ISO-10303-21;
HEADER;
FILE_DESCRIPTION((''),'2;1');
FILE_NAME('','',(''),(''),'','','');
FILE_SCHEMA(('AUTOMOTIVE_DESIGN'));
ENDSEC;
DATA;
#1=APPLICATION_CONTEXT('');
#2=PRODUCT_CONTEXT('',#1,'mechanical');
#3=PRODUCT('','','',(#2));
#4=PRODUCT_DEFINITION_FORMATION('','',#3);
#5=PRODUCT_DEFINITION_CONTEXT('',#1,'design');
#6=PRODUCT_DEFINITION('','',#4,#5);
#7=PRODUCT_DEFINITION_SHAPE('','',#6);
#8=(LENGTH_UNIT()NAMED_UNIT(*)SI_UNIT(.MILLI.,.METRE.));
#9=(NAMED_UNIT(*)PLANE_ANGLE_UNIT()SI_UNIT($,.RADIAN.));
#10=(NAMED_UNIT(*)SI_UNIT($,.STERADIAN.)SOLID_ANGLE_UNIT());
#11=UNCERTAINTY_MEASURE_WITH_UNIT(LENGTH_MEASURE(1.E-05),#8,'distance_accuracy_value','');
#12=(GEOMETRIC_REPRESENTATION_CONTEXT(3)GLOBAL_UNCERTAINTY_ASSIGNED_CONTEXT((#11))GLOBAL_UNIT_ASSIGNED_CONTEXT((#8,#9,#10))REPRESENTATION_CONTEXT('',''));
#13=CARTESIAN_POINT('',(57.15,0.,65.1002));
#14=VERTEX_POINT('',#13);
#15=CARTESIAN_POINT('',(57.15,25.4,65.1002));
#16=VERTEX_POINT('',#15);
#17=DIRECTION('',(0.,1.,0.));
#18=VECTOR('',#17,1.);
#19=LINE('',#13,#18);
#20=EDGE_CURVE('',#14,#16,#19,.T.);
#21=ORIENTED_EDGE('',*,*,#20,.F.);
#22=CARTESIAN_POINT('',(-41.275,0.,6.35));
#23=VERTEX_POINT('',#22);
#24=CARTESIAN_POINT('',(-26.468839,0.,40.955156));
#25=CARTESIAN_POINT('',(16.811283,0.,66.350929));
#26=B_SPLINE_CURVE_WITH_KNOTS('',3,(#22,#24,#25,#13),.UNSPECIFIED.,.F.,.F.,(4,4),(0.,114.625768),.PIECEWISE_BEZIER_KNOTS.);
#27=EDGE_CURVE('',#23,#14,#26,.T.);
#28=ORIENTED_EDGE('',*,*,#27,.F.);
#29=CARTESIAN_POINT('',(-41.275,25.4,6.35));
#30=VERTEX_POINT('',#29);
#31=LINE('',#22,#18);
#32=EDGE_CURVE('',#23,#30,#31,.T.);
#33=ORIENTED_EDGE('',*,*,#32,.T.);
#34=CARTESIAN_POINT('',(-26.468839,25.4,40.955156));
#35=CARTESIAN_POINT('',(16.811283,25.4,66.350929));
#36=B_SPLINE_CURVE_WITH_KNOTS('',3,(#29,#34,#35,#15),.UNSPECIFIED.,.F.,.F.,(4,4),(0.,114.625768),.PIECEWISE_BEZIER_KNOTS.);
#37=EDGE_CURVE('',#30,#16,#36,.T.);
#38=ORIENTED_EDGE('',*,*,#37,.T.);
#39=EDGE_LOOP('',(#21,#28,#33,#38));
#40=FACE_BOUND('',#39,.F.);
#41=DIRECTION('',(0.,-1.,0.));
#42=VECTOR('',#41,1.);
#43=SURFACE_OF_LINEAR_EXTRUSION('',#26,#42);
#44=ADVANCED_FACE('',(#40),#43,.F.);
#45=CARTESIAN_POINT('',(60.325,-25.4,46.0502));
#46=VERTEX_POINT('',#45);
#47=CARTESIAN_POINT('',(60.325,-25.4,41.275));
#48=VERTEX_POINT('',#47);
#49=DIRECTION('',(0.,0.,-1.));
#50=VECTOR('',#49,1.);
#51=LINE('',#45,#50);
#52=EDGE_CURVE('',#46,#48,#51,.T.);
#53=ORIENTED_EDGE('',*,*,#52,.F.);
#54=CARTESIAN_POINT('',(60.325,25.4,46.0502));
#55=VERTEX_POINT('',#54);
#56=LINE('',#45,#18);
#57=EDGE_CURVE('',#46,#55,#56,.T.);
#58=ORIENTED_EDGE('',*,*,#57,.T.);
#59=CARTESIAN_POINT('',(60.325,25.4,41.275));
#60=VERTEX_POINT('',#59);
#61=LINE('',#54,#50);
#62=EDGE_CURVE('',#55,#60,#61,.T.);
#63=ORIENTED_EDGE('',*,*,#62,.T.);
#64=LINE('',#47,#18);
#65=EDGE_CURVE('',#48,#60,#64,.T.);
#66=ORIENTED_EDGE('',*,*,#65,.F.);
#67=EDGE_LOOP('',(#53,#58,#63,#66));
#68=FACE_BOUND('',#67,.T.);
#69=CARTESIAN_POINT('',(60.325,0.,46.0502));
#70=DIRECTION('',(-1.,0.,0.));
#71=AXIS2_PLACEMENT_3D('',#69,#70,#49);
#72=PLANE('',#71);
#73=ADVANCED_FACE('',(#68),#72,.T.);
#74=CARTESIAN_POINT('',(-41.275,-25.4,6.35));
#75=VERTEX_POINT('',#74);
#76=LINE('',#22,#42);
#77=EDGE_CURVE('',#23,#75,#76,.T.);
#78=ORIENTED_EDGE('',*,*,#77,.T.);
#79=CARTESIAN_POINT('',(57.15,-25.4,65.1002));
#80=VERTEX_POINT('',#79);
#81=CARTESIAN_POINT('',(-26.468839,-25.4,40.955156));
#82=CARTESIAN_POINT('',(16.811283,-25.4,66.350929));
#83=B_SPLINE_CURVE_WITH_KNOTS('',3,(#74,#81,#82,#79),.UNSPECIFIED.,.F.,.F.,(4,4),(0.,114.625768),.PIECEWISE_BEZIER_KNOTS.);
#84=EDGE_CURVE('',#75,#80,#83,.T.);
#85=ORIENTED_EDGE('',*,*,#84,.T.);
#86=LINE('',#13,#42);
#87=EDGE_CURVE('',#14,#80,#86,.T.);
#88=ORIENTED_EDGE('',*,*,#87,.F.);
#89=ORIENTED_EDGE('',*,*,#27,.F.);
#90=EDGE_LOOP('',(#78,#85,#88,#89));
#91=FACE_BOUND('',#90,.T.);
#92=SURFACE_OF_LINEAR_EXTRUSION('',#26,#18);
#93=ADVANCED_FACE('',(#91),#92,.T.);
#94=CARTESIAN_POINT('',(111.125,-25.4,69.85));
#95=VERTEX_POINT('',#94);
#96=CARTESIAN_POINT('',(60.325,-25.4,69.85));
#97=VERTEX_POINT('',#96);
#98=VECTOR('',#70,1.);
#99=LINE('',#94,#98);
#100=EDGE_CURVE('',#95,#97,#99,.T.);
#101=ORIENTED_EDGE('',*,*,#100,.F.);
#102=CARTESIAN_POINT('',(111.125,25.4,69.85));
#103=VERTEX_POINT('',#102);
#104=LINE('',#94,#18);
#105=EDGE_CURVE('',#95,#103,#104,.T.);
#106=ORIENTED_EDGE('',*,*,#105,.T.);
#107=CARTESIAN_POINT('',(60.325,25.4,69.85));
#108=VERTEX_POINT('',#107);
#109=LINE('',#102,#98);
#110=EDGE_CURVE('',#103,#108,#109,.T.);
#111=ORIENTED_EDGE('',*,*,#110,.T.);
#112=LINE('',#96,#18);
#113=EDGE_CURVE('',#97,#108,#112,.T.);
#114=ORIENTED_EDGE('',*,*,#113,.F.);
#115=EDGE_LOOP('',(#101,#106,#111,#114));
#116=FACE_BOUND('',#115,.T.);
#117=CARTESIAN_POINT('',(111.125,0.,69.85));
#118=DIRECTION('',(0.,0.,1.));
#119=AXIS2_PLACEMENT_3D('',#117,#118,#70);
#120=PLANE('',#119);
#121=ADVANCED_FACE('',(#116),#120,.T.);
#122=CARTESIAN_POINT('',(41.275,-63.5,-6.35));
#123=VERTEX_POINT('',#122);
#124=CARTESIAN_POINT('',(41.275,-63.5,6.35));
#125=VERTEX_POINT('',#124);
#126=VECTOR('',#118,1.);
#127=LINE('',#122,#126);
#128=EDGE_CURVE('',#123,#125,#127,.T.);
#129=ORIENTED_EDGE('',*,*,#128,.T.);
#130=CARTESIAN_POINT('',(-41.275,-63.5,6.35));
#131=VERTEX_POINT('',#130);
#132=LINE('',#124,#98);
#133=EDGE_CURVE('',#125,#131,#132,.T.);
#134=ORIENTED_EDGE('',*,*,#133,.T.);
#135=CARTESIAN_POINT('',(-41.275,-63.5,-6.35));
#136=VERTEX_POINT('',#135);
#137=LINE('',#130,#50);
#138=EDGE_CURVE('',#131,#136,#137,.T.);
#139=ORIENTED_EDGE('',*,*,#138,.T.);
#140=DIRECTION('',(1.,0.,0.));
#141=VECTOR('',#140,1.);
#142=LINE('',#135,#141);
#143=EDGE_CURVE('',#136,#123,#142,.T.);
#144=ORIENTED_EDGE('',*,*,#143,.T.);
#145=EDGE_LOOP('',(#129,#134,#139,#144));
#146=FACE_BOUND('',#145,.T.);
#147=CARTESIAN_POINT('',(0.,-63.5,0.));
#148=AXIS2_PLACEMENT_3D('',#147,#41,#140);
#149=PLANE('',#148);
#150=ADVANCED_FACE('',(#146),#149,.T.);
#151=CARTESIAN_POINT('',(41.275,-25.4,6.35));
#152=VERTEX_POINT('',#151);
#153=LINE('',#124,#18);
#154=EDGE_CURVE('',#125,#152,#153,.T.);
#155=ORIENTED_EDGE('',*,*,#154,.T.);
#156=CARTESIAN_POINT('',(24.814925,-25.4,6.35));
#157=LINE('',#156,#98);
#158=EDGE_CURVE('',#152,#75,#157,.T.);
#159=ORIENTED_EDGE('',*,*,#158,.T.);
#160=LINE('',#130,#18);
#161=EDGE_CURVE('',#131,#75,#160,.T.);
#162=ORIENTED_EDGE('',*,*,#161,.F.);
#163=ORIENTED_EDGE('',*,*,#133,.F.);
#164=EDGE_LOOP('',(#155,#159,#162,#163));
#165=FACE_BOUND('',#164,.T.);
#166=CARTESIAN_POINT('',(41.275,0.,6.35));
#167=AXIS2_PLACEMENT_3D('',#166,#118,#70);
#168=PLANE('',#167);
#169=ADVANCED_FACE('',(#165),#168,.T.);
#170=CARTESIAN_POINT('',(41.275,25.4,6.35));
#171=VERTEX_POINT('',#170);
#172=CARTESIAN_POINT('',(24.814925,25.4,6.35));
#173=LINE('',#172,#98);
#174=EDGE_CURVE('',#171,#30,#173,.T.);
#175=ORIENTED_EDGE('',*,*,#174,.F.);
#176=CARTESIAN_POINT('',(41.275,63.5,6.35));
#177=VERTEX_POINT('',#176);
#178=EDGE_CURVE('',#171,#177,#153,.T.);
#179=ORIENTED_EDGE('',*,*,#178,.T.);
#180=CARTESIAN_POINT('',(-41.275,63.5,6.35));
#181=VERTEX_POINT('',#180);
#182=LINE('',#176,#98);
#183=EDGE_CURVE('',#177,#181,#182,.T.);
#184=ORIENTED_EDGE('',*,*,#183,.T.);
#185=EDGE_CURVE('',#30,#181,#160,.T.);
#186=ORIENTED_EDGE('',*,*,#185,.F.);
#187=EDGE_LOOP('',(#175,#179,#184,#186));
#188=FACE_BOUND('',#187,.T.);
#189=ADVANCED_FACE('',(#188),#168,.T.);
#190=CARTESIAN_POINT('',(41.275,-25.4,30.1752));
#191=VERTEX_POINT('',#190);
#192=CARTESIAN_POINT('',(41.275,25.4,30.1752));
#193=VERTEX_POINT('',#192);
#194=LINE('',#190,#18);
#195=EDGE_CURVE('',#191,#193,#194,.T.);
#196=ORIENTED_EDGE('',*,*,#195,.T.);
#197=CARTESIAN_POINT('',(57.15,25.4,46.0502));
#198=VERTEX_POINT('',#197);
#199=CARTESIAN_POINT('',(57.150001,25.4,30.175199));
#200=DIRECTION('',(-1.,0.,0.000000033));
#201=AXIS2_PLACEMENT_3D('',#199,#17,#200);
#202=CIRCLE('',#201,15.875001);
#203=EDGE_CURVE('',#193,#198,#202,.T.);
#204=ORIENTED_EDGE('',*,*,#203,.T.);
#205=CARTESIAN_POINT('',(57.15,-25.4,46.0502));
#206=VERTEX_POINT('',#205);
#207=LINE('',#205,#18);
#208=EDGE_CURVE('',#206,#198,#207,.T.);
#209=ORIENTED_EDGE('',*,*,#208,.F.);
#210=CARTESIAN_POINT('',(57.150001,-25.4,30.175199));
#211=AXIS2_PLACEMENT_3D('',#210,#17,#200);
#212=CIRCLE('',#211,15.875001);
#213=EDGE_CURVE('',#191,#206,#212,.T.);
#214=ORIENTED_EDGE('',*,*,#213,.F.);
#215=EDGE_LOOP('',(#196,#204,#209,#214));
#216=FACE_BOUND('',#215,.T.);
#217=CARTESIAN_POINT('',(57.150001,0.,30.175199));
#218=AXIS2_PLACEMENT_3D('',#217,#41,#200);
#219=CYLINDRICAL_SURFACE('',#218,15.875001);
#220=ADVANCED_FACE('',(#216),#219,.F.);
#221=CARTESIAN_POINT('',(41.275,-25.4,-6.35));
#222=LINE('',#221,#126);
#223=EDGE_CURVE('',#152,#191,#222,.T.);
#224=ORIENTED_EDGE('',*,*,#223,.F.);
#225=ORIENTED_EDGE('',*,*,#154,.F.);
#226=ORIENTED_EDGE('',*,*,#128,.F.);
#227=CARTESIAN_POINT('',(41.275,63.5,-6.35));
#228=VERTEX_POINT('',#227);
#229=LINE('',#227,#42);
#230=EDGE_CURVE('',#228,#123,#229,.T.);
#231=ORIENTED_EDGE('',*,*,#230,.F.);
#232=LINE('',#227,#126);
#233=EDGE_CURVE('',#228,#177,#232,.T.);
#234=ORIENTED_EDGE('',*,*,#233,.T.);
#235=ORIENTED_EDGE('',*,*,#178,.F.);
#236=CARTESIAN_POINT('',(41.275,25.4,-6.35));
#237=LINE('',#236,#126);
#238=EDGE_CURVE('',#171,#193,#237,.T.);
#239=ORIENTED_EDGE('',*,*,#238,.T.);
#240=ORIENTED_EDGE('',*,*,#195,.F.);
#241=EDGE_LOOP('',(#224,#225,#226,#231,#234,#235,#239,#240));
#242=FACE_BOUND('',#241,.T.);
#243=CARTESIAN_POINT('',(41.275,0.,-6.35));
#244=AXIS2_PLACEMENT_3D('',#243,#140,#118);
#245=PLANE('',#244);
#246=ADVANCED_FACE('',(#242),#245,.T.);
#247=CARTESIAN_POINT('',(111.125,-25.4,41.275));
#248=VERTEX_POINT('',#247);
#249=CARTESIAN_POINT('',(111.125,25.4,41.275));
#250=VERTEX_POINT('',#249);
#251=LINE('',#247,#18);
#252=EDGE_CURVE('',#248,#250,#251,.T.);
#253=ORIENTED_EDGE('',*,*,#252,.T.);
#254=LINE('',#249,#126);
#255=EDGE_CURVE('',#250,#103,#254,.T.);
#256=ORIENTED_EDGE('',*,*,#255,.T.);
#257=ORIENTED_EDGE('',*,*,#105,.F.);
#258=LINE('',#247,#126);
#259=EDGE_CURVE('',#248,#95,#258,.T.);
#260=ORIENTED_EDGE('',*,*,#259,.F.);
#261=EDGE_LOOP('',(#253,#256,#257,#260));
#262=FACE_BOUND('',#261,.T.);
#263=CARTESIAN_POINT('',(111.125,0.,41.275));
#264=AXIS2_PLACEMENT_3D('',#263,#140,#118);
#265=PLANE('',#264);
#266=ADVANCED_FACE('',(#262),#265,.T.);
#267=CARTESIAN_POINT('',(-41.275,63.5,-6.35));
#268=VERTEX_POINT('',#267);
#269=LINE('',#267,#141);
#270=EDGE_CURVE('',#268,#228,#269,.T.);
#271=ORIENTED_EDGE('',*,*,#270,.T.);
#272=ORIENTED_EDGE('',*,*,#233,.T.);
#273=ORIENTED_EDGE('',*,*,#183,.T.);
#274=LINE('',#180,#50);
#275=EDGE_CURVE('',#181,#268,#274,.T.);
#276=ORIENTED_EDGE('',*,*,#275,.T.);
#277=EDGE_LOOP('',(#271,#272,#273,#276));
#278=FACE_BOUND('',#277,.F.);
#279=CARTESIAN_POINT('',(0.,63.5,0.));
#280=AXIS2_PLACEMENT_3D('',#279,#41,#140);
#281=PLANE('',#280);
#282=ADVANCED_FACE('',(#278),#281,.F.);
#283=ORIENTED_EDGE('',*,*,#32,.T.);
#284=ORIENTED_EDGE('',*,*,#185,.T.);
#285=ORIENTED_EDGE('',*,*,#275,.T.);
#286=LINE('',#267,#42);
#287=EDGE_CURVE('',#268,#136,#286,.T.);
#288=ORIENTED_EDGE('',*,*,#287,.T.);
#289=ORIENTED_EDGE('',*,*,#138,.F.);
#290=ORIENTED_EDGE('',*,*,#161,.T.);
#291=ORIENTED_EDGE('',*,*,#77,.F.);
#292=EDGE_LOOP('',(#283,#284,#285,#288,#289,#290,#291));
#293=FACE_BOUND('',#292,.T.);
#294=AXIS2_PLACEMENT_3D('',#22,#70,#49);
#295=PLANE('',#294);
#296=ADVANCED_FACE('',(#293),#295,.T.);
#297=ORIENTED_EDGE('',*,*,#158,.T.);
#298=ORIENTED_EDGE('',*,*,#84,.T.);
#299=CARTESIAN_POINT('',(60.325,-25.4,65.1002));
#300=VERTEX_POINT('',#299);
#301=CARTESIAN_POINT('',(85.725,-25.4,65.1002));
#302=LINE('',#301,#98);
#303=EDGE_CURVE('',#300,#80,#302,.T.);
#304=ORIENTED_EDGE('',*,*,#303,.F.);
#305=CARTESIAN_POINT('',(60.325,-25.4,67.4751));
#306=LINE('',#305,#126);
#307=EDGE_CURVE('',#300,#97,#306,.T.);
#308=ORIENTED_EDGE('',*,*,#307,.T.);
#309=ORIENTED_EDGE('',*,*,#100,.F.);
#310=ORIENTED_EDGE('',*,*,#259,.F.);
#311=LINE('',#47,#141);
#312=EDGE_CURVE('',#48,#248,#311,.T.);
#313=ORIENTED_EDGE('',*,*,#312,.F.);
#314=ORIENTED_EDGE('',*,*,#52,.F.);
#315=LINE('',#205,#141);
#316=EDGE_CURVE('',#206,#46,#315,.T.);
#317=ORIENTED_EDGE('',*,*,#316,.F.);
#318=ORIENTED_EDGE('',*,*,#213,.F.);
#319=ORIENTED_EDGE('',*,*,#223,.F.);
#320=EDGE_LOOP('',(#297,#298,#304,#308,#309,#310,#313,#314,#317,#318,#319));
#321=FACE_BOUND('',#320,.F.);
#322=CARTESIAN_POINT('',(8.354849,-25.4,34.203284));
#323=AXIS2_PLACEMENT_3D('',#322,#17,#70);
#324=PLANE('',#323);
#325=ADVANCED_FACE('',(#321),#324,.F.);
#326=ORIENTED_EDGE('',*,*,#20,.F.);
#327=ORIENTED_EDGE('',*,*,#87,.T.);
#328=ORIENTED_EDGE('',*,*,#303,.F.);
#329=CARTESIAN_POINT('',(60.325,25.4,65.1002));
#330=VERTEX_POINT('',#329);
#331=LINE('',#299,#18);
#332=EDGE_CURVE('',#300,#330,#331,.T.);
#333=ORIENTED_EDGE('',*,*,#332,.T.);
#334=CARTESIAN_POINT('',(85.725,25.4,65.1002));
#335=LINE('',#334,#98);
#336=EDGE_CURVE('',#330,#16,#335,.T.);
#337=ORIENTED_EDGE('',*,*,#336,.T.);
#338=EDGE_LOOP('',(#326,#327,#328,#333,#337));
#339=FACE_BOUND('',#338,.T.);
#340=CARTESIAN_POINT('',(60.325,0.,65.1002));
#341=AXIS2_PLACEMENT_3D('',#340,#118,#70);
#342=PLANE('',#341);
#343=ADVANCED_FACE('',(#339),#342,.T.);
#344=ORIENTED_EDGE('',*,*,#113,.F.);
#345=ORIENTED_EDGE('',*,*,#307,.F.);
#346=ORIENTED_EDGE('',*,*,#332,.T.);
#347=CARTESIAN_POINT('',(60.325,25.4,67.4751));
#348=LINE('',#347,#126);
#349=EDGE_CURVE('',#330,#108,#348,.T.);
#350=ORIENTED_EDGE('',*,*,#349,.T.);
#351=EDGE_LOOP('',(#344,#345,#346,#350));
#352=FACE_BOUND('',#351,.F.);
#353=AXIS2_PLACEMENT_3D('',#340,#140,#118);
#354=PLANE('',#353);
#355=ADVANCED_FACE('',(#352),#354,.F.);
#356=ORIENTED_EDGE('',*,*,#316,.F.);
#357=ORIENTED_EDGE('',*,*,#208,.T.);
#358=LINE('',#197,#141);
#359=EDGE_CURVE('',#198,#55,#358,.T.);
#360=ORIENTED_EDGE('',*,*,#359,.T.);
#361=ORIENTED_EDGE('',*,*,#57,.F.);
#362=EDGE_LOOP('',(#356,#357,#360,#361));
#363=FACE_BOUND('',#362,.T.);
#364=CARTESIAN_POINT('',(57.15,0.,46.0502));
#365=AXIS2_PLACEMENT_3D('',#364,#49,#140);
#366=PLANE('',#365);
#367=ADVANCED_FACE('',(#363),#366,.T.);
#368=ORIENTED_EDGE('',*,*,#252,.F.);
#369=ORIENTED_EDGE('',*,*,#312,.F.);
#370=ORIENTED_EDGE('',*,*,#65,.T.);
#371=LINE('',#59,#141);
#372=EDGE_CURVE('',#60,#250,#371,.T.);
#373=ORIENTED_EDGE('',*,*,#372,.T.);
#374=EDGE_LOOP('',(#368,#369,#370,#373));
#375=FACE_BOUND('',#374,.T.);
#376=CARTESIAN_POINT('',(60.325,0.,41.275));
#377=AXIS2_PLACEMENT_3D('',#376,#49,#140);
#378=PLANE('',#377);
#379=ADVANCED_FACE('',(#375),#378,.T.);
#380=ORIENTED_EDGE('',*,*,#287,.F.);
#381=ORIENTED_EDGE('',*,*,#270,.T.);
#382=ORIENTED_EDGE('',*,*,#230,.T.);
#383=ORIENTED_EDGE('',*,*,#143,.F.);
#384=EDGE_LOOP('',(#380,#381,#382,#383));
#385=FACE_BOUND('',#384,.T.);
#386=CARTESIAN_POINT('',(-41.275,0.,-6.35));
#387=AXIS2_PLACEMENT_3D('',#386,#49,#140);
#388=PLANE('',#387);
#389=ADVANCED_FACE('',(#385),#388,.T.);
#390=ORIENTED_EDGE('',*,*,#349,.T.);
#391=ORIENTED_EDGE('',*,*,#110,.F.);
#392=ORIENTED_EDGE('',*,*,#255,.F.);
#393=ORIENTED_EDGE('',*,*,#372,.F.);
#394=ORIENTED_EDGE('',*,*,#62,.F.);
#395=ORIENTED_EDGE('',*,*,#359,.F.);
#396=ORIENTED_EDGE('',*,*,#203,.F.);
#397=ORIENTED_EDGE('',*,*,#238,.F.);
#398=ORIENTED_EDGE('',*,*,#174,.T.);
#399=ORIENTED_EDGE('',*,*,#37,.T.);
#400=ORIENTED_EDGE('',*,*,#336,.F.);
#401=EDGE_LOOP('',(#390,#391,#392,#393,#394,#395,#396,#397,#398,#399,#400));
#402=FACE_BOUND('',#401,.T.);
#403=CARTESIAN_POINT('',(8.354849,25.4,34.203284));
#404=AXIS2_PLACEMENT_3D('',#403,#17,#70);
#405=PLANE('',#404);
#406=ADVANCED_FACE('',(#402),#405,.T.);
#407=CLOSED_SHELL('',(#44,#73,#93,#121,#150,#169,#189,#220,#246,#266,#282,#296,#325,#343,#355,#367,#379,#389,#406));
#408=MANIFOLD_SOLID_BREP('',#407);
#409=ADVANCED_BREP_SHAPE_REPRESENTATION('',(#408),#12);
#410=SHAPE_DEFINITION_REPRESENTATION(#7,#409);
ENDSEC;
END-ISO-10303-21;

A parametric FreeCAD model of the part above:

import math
import FreeCAD as App
import Part
import Sketcher

V = App.Vector
Q = App.Units.Quantity


def add_polygon(sketch, points):
    """Adds a closed chain of lines whose ends are joined by coincident constraints."""
    first, n = sketch.GeometryCount, len(points)
    for a, b in zip(points, points[1:] + points[:1]):
        sketch.addGeometry(Part.LineSegment(App.Vector(*a, 0), App.Vector(*b, 0)), False)
    for i in range(n):
        sketch.addConstraint(Sketcher.Constraint("Coincident", first + i, 2, first + (i + 1) % n, 1))

doc = App.newDocument("Part")
body = doc.addObject("PartDesign::Body", "Body")

sketch1 = doc.addObject("Sketcher::SketchObject", "Sketch")
body.addObject(sketch1)
sketch1.AttachmentSupport = (doc.XZ_Plane, [""])
sketch1.MapMode = "FlatFace"
add_polygon(sketch1, [(-41, 6), (-41, -6), (41, -6), (41, 6)])
sketch1.addConstraint([
    Sketcher.Constraint("Vertical", 0),
    Sketcher.Constraint("Horizontal", 1),
    Sketcher.Constraint("Vertical", 2),
    Sketcher.Constraint("Horizontal", 3),
    Sketcher.Constraint("Symmetric", 0, 2, 2, 2, -1, 1),
    Sketcher.Constraint("DistanceY", 0, 2, 0, 1, Q("0.5 in")),
    Sketcher.Constraint("DistanceX", 1, 1, 1, 2, Q("3.25 in")),
])
pad1 = doc.addObject("PartDesign::Pad", "Pad")
body.addObject(pad1)
pad1.Profile = sketch1
pad1.Length = Q("5 in")
pad1.Midplane = True

sketch2 = doc.addObject("Sketcher::SketchObject", "Sketch001")
body.addObject(sketch2)
sketch2.AttachmentSupport = (doc.XZ_Plane, [""])
sketch2.MapMode = "FlatFace"
sketch2.addGeometry([
    Part.BSplineCurve([V(-41.275, 6.35, 0), V(-26.468839, 40.955156, 0), V(16.811283, 66.350929, 0), V(57.15, 65.1002, 0)], [4, 4], [0, 114.625768], False, 3, [1, 1, 1, 1], False),
    Part.LineSegment(V(-41.275, 6.35, 0), V(-41.275, -6.35, 0)),
    Part.LineSegment(V(-41.275, -6.35, 0), V(41.275, -6.35, 0)),
    Part.LineSegment(V(41.275, -6.35, 0), V(41.275, 30.1752, 0)),
    Part.ArcOfCircle(Part.Circle(V(57.150001, 30.175199, 0), V(0, 0, 1), 15.875001), math.radians(90.000002), math.radians(179.999998)),
    Part.LineSegment(V(57.15, 46.0502, 0), V(60.325, 46.0502, 0)),
    Part.LineSegment(V(60.325, 46.0502, 0), V(60.325, 41.275, 0)),
    Part.LineSegment(V(60.325, 41.275, 0), V(111.125, 41.275, 0)),
    Part.LineSegment(V(111.125, 41.275, 0), V(111.125, 69.85, 0)),
    Part.LineSegment(V(111.125, 69.85, 0), V(60.325, 69.85, 0)),
    Part.LineSegment(V(60.325, 69.85, 0), V(60.325, 65.1002, 0)),
    Part.LineSegment(V(60.325, 65.1002, 0), V(57.15, 65.1002, 0)),
], False)
sketch2.addConstraint([
    Sketcher.Constraint("Block", 0),
    Sketcher.Constraint("Coincident", 0, 1, 1, 1),
    Sketcher.Constraint("Coincident", 1, 2, 2, 1),
    Sketcher.Constraint("Coincident", 2, 2, 3, 1),
    Sketcher.Constraint("Tangent", 3, 2, 4, 2),
    Sketcher.Constraint("Tangent", 4, 1, 5, 1),
    Sketcher.Constraint("Coincident", 5, 2, 6, 1),
    Sketcher.Constraint("Coincident", 6, 2, 7, 1),
    Sketcher.Constraint("Coincident", 7, 2, 8, 1),
    Sketcher.Constraint("Coincident", 8, 2, 9, 1),
    Sketcher.Constraint("Coincident", 9, 2, 10, 1),
    Sketcher.Constraint("Coincident", 10, 2, 11, 1),
    Sketcher.Constraint("Coincident", 11, 2, 0, 2),
    Sketcher.Constraint("Vertical", 1),
    Sketcher.Constraint("Horizontal", 2),
    Sketcher.Constraint("Vertical", 3),
    Sketcher.Constraint("Horizontal", 5),
    Sketcher.Constraint("Vertical", 6),
    Sketcher.Constraint("Horizontal", 7),
    Sketcher.Constraint("Vertical", 8),
    Sketcher.Constraint("Horizontal", 9),
    Sketcher.Constraint("Vertical", 10),
    Sketcher.Constraint("Horizontal", 11),
    Sketcher.Constraint("Vertical", 6, 2, 9, 2),
    Sketcher.Constraint("Vertical", 4, 1, 11, 2),
    Sketcher.Constraint("DistanceX", 7, 1, 7, 2, Q("2 in")),
    Sketcher.Constraint("DistanceY", 1, 2, 1, 1, Q("0.5 in")),
    Sketcher.Constraint("Radius", 4, Q("0.625 in")),
    Sketcher.Constraint("DistanceX", 1, 2, 5, 2, Q("4 in")),
    Sketcher.Constraint("DistanceY", 3, 1, 3, 2, Q("1.438 in")),
    Sketcher.Constraint("DistanceY", 6, 2, 6, 1, Q("0.188 in")),
    Sketcher.Constraint("DistanceY", 8, 1, 8, 2, Q("1.125 in")),
])
pad2 = doc.addObject("PartDesign::Pad", "Pad001")
body.addObject(pad2)
pad2.Profile = sketch2
pad2.Length = Q("2 in")
pad2.Midplane = True

doc.recompute()
